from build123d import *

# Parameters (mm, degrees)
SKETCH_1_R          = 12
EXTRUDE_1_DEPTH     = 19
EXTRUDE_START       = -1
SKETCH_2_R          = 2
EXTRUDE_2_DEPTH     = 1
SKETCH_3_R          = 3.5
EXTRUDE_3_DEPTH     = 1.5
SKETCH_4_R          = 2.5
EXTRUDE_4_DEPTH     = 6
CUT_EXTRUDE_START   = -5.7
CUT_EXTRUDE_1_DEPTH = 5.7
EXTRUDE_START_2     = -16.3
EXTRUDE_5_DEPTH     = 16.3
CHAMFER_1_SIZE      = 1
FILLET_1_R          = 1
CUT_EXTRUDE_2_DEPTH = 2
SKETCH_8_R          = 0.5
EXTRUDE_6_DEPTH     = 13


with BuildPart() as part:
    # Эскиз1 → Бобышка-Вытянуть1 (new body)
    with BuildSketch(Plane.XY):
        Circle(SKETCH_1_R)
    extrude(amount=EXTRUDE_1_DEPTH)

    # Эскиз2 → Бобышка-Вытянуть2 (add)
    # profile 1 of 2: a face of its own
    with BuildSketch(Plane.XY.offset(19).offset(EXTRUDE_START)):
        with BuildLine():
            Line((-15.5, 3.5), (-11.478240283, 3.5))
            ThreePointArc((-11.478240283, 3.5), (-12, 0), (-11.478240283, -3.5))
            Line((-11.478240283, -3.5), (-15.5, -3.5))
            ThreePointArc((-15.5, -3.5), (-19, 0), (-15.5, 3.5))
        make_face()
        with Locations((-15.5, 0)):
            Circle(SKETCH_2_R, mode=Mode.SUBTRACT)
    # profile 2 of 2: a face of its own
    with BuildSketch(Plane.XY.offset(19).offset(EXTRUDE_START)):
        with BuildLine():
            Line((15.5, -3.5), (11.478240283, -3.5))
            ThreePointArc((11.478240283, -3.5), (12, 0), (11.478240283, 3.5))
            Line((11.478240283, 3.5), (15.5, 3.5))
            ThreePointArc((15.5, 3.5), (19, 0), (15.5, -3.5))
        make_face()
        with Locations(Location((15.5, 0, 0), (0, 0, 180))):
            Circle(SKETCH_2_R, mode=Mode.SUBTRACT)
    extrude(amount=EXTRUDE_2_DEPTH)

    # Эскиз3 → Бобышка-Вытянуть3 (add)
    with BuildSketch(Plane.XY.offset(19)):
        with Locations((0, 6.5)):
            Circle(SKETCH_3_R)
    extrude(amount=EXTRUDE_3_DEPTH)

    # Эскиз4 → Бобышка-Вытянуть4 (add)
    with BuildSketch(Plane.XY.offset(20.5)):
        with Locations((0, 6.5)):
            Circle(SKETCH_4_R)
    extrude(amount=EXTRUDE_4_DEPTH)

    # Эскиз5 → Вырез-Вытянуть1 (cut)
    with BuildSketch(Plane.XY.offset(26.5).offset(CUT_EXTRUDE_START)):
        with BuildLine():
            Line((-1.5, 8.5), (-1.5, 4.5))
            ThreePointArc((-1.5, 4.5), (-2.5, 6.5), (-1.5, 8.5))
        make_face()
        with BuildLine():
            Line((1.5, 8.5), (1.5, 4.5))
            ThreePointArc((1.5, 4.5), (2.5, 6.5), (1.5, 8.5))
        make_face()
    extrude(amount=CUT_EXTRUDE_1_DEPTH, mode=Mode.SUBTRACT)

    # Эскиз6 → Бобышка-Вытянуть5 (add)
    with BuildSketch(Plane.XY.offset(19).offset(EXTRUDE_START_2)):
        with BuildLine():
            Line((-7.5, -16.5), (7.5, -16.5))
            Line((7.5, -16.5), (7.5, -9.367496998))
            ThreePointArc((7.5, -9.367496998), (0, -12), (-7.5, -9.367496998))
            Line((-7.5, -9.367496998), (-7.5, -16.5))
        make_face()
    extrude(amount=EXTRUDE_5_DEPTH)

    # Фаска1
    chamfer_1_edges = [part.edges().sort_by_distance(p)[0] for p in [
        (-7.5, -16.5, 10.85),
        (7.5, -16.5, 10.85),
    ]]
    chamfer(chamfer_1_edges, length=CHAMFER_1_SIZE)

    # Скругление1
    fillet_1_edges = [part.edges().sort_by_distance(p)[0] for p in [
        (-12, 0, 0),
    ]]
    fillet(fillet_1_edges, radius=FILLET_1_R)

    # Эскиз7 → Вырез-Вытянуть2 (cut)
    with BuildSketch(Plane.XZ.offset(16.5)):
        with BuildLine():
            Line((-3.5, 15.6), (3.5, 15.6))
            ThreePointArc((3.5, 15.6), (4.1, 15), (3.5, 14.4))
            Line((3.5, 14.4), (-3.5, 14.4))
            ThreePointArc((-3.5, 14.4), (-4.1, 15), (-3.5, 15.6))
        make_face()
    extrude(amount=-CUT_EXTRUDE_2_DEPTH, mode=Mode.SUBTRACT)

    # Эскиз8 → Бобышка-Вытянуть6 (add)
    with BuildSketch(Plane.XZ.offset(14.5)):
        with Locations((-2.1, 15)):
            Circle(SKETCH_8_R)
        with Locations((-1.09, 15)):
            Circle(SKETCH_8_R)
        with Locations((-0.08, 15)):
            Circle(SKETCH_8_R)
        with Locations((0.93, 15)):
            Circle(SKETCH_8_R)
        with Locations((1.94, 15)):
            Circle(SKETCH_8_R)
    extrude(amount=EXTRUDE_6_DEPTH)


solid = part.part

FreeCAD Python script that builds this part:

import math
import FreeCAD as App
import Part
import Sketcher
from FreeCAD import Vector


def edges_at(feature, points):
    """Names of the edges that pass closest to the given points."""
    edges = feature.Shape.Edges
    near = lambda p: min(range(len(edges)), key=lambda i: edges[i].distToShape(Part.Vertex(*p))[0])
    return sorted({f"Edge{near(p) + 1}" for p in points})

doc = App.newDocument("Part")
body = doc.addObject("PartDesign::Body", "Body")

# Sketch on XY plane
sketch1 = body.newObject("Sketcher::SketchObject", "Sketch")
sketch1.AttachmentSupport = (doc.getObject("XY_Plane"), [""])
sketch1.MapMode = "FlatFace"
sketch1.addGeometry(Part.Circle(Vector(0, 0, 0), Vector(0, 0, 1), 12), False)
sketch1.addConstraint([
    Sketcher.Constraint("Coincident", 0, 3, -1, 1),
    Sketcher.Constraint("Diameter", 0, 24.0),
])
pad1 = body.newObject("PartDesign::Pad", "Pad")
pad1.Profile = sketch1
pad1.Length = 19

# Sketch on XY plane
sketch2 = body.newObject("Sketcher::SketchObject", "Sketch001")
sketch2.AttachmentSupport = (doc.getObject("XY_Plane"), [""])
sketch2.MapMode = "FlatFace"
sketch2.AttachmentOffset = App.Placement(Vector(0, 0, 18), App.Rotation())
sketch2.addGeometry([
    Part.LineSegment(Vector(-11.47824, 3.5, 0), Vector(-15.5, 3.5, 0)),  # 0
    Part.ArcOfCircle(Part.Circle(Vector(-15.5, 0, 0), Vector(0, 0, 1), 3.5), math.radians(90), math.radians(270)),  # 1
    Part.LineSegment(Vector(-15.5, -3.5, 0), Vector(-11.47824, -3.5, 0)),  # 2
    Part.ArcOfCircle(Part.Circle(Vector(0, 0, 0), Vector(0, 0, 1), 12), math.radians(163.042237), math.radians(196.957763)),  # 3
    Part.Circle(Vector(-15.5, 0, 0), Vector(0, 0, 1), 2),  # 4
    Part.LineSegment(Vector(11.47824, -3.5, 0), Vector(15.5, -3.5, 0)),  # 5
    Part.ArcOfCircle(Part.Circle(Vector(15.5, 0, 0), Vector(0, 0, 1), 3.5), math.radians(-90), math.radians(90)),  # 6
    Part.LineSegment(Vector(15.5, 3.5, 0), Vector(11.47824, 3.5, 0)),  # 7
    Part.ArcOfCircle(Part.Circle(Vector(0, 0, 0), Vector(0, 0, 1), 12), math.radians(-16.957763), math.radians(16.957763)),  # 8
    Part.Circle(Vector(15.5, 0, 0), Vector(0, 0, 1), 2),  # 9
], False)
sketch2.addConstraint([
    Sketcher.Constraint("Tangent", 0, 2, 1, 1),
    Sketcher.Constraint("Tangent", 1, 2, 2, 1),
    Sketcher.Constraint("Coincident", 2, 2, 3, 2),
    Sketcher.Constraint("Coincident", 3, 1, 0, 1),
    Sketcher.Constraint("Tangent", 5, 2, 6, 1),
    Sketcher.Constraint("Tangent", 6, 2, 7, 1),
    Sketcher.Constraint("Coincident", 7, 2, 8, 2),
    Sketcher.Constraint("Coincident", 8, 1, 5, 1),
    Sketcher.Constraint("Horizontal", 0),
    Sketcher.Constraint("Horizontal", 2),
    Sketcher.Constraint("Horizontal", 5),
    Sketcher.Constraint("Horizontal", 7),
    Sketcher.Constraint("Coincident", 3, 3, -1, 1),
    Sketcher.Constraint("Coincident", 8, 3, -1, 1),
    Sketcher.Constraint("Coincident", 4, 3, 1, 3),
    Sketcher.Constraint("Coincident", 9, 3, 6, 3),
    Sketcher.Constraint("Equal", 1, 6),
    Sketcher.Constraint("Equal", 3, 8),
    Sketcher.Constraint("Equal", 4, 9),
    Sketcher.Constraint("Symmetric", 1, 3, 6, 3, -1, 1),
    Sketcher.Constraint("PointOnObject", 1, 3, -1),
    Sketcher.Constraint("Diameter", 4, 4.0),
    Sketcher.Constraint("Radius", 3, 12.0),
    Sketcher.Constraint("Radius", 1, 3.5),
    Sketcher.Constraint("DistanceX", 1, 3, 6, 3, 31.0),
])
pad2 = body.newObject("PartDesign::Pad", "Pad001")
pad2.Profile = sketch2
pad2.Length = 1

# Sketch on XY plane
sketch3 = body.newObject("Sketcher::SketchObject", "Sketch002")
sketch3.AttachmentSupport = (doc.getObject("XY_Plane"), [""])
sketch3.MapMode = "FlatFace"
sketch3.AttachmentOffset = App.Placement(Vector(0, 0, 19), App.Rotation())
sketch3.addGeometry(Part.Circle(Vector(0, 6.5, 0), Vector(0, 0, 1), 3.5), False)
sketch3.addConstraint([
    Sketcher.Constraint("PointOnObject", 0, 3, -2),
    Sketcher.Constraint("Diameter", 0, 7.0),
    Sketcher.Constraint("DistanceY", -1, 1, 0, 3, 6.5),
])
pad3 = body.newObject("PartDesign::Pad", "Pad002")
pad3.Profile = sketch3
pad3.Length = 1.5

# Sketch on XY plane
sketch4 = body.newObject("Sketcher::SketchObject", "Sketch003")
sketch4.AttachmentSupport = (doc.getObject("XY_Plane"), [""])
sketch4.MapMode = "FlatFace"
sketch4.AttachmentOffset = App.Placement(Vector(0, 0, 20.5), App.Rotation())
sketch4.addGeometry(Part.Circle(Vector(0, 6.5, 0), Vector(0, 0, 1), 2.5), False)
sketch4.addConstraint([
    Sketcher.Constraint("PointOnObject", 0, 3, -2),
    Sketcher.Constraint("Diameter", 0, 5.0),
    Sketcher.Constraint("DistanceY", -1, 1, 0, 3, 6.5),
])
pad4 = body.newObject("PartDesign::Pad", "Pad003")
pad4.Profile = sketch4
pad4.Length = 6

# Sketch on XY plane
sketch5 = body.newObject("Sketcher::SketchObject", "Sketch004")
sketch5.AttachmentSupport = (doc.getObject("XY_Plane"), [""])
sketch5.MapMode = "FlatFace"
sketch5.AttachmentOffset = App.Placement(Vector(0, 0, 20.8), App.Rotation())
sketch5.addGeometry([
    Part.LineSegment(Vector(-1.5, 4.5, 0), Vector(-1.5, 8.5, 0)),
    Part.ArcOfCircle(Part.Circle(Vector(0, 6.5, 0), Vector(0, 0, 1), 2.5), math.radians(126.869898), math.radians(233.130102)),
    Part.LineSegment(Vector(1.5, 8.5, 0), Vector(1.5, 4.5, 0)),
    Part.ArcOfCircle(Part.Circle(Vector(0, 6.5, 0), Vector(0, 0, 1), 2.5), math.radians(-53.130102), math.radians(53.130102)),
], False)
sketch5.addConstraint([
    Sketcher.Constraint("Coincident", 0, 1, 1, 2),
    Sketcher.Constraint("Coincident", 1, 1, 0, 2),
    Sketcher.Constraint("Coincident", 2, 1, 3, 2),
    Sketcher.Constraint("Coincident", 3, 1, 2, 2),
    Sketcher.Constraint("Vertical", 0),
    Sketcher.Constraint("Vertical", 2),
    Sketcher.Constraint("Coincident", 3, 3, 1, 3),
    Sketcher.Constraint("Equal", 1, 3),
    Sketcher.Constraint("Symmetric", 1, 1, 2, 1, -2),
    Sketcher.Constraint("Radius", 1, 2.5),
    Sketcher.Constraint("DistanceY", 0, 1, 0, 2, 4.0),
    Sketcher.Constraint("DistanceY", -1, 1, 1, 3, 6.5),
])
pocket1 = body.newObject("PartDesign::Pocket", "Pocket")
pocket1.Profile = sketch5
pocket1.Length = 5.7
pocket1.Reversed = True

# Sketch on XY plane
sketch6 = body.newObject("Sketcher::SketchObject", "Sketch005")
sketch6.AttachmentSupport = (doc.getObject("XY_Plane"), [""])
sketch6.MapMode = "FlatFace"
sketch6.AttachmentOffset = App.Placement(Vector(0, 0, 2.7), App.Rotation())
sketch6.addGeometry([
    Part.LineSegment(Vector(-7.5, -16.5, 0), Vector(7.5, -16.5, 0)),
    Part.LineSegment(Vector(7.5, -16.5, 0), Vector(7.5, -9.367497, 0)),
    Part.ArcOfCircle(Part.Circle(Vector(0, 0, 0), Vector(0, 0, 1), 12), math.radians(-128.682187), math.radians(-51.317813)),
    Part.LineSegment(Vector(-7.5, -9.367497, 0), Vector(-7.5, -16.5, 0)),
], False)
sketch6.addConstraint([
    Sketcher.Constraint("Coincident", 0, 2, 1, 1),
    Sketcher.Constraint("Coincident", 1, 2, 2, 2),
    Sketcher.Constraint("Coincident", 2, 1, 3, 1),
    Sketcher.Constraint("Coincident", 3, 2, 0, 1),
    Sketcher.Constraint("Horizontal", 0),
    Sketcher.Constraint("Vertical", 1),
    Sketcher.Constraint("Vertical", 3),
    Sketcher.Constraint("Coincident", 2, 3, -1, 1),
    Sketcher.Constraint("Horizontal", 1, 2, 2, 1),
    Sketcher.Constraint("Radius", 2, 12.0),
    Sketcher.Constraint("DistanceX", 0, 1, 0, 2, 15.0),
    Sketcher.Constraint("DistanceY", 0, 2, -1, 1, 16.5),
])
pad5 = body.newObject("PartDesign::Pad", "Pad004")
pad5.Profile = sketch6
pad5.Length = 16.3
doc.recompute()

chamfer = body.newObject("PartDesign::Chamfer", "Chamfer")
chamfer.Base = (pad5, edges_at(pad5, [(-7.5, -16.5, 10.85), (7.5, -16.5, 10.85)]))
chamfer.Size = 1
doc.recompute()

fillet = body.newObject("PartDesign::Fillet", "Fillet")
fillet.Base = (chamfer, edges_at(chamfer, [(-12, 0, 0)]))
fillet.Radius = 1

# Sketch on XZ plane
sketch7 = body.newObject("Sketcher::SketchObject", "Sketch006")
sketch7.AttachmentSupport = (doc.getObject("XZ_Plane"), [""])
sketch7.MapMode = "FlatFace"
sketch7.AttachmentOffset = App.Placement(Vector(0, 0, 16.5), App.Rotation())
sketch7.addGeometry([
    Part.LineSegment(Vector(3.5, 15.6, 0), Vector(-3.5, 15.6, 0)),
    Part.ArcOfCircle(Part.Circle(Vector(-3.5, 15, 0), Vector(0, 0, 1), 0.6), math.radians(90), math.radians(270)),
    Part.LineSegment(Vector(-3.5, 14.4, 0), Vector(3.5, 14.4, 0)),
    Part.ArcOfCircle(Part.Circle(Vector(3.5, 15, 0), Vector(0, 0, 1), 0.6), math.radians(-90), math.radians(90)),
], False)
sketch7.addConstraint([
    Sketcher.Constraint("Tangent", 0, 2, 1, 1),
    Sketcher.Constraint("Tangent", 1, 2, 2, 1),
    Sketcher.Constraint("Tangent", 2, 2, 3, 1),
    Sketcher.Constraint("Tangent", 3, 2, 0, 1),
    Sketcher.Constraint("Horizontal", 0),
    Sketcher.Constraint("Horizontal", 2),
    Sketcher.Constraint("Radius", 1, 0.6),
    Sketcher.Constraint("DistanceX", 0, 2, 0, 1, 7.0),
    Sketcher.Constraint("DistanceY", -1, 1, 1, 3, 15.0),
    Sketcher.Constraint("DistanceX", 1, 3, -1, 1, 3.5),
])
pocket2 = body.newObject("PartDesign::Pocket", "Pocket001")
pocket2.Profile = sketch7
pocket2.Length = 2

# Sketch on XZ plane
sketch8 = body.newObject("Sketcher::SketchObject", "Sketch007")
sketch8.AttachmentSupport = (doc.getObject("XZ_Plane"), [""])
sketch8.MapMode = "FlatFace"
sketch8.AttachmentOffset = App.Placement(Vector(0, 0, 14.5), App.Rotation())
sketch8.addGeometry([
    Part.Circle(Vector(-2.1, 15, 0), Vector(0, 0, 1), 0.5),  # 0
    Part.Circle(Vector(-1.09, 15, 0), Vector(0, 0, 1), 0.5),  # 1
    Part.Circle(Vector(-0.08, 15, 0), Vector(0, 0, 1), 0.5),  # 2
    Part.Circle(Vector(0.93, 15, 0), Vector(0, 0, 1), 0.5),  # 3
    Part.Circle(Vector(1.94, 15, 0), Vector(0, 0, 1), 0.5),  # 4
], False)
sketch8.addConstraint([
    Sketcher.Constraint("Equal", 0, 1),
    Sketcher.Constraint("Equal", 1, 2),
    Sketcher.Constraint("Equal", 2, 3),
    Sketcher.Constraint("Equal", 3, 4),
    Sketcher.Constraint("Horizontal", 0, 3, 1, 3),
    Sketcher.Constraint("Horizontal", 1, 3, 2, 3),
    Sketcher.Constraint("Horizontal", 2, 3, 3, 3),
    Sketcher.Constraint("Horizontal", 3, 3, 4, 3),
    Sketcher.Constraint("Diameter", 0, 1.0),
    Sketcher.Constraint("DistanceY", -1, 1, 0, 3, 15.0),
    Sketcher.Constraint("DistanceX", 0, 3, -1, 1, 2.1),
    Sketcher.Constraint("DistanceX", 1, 3, -1, 1, 1.09),
    Sketcher.Constraint("DistanceX", 2, 3, -1, 1, 0.08),
    Sketcher.Constraint("DistanceX", -1, 1, 3, 3, 0.93),
    Sketcher.Constraint("DistanceX", -1, 1, 4, 3, 1.94),
])
pad6 = body.newObject("PartDesign::Pad", "Pad005")
pad6.Profile = sketch8
pad6.Length = 13

doc.recompute()
